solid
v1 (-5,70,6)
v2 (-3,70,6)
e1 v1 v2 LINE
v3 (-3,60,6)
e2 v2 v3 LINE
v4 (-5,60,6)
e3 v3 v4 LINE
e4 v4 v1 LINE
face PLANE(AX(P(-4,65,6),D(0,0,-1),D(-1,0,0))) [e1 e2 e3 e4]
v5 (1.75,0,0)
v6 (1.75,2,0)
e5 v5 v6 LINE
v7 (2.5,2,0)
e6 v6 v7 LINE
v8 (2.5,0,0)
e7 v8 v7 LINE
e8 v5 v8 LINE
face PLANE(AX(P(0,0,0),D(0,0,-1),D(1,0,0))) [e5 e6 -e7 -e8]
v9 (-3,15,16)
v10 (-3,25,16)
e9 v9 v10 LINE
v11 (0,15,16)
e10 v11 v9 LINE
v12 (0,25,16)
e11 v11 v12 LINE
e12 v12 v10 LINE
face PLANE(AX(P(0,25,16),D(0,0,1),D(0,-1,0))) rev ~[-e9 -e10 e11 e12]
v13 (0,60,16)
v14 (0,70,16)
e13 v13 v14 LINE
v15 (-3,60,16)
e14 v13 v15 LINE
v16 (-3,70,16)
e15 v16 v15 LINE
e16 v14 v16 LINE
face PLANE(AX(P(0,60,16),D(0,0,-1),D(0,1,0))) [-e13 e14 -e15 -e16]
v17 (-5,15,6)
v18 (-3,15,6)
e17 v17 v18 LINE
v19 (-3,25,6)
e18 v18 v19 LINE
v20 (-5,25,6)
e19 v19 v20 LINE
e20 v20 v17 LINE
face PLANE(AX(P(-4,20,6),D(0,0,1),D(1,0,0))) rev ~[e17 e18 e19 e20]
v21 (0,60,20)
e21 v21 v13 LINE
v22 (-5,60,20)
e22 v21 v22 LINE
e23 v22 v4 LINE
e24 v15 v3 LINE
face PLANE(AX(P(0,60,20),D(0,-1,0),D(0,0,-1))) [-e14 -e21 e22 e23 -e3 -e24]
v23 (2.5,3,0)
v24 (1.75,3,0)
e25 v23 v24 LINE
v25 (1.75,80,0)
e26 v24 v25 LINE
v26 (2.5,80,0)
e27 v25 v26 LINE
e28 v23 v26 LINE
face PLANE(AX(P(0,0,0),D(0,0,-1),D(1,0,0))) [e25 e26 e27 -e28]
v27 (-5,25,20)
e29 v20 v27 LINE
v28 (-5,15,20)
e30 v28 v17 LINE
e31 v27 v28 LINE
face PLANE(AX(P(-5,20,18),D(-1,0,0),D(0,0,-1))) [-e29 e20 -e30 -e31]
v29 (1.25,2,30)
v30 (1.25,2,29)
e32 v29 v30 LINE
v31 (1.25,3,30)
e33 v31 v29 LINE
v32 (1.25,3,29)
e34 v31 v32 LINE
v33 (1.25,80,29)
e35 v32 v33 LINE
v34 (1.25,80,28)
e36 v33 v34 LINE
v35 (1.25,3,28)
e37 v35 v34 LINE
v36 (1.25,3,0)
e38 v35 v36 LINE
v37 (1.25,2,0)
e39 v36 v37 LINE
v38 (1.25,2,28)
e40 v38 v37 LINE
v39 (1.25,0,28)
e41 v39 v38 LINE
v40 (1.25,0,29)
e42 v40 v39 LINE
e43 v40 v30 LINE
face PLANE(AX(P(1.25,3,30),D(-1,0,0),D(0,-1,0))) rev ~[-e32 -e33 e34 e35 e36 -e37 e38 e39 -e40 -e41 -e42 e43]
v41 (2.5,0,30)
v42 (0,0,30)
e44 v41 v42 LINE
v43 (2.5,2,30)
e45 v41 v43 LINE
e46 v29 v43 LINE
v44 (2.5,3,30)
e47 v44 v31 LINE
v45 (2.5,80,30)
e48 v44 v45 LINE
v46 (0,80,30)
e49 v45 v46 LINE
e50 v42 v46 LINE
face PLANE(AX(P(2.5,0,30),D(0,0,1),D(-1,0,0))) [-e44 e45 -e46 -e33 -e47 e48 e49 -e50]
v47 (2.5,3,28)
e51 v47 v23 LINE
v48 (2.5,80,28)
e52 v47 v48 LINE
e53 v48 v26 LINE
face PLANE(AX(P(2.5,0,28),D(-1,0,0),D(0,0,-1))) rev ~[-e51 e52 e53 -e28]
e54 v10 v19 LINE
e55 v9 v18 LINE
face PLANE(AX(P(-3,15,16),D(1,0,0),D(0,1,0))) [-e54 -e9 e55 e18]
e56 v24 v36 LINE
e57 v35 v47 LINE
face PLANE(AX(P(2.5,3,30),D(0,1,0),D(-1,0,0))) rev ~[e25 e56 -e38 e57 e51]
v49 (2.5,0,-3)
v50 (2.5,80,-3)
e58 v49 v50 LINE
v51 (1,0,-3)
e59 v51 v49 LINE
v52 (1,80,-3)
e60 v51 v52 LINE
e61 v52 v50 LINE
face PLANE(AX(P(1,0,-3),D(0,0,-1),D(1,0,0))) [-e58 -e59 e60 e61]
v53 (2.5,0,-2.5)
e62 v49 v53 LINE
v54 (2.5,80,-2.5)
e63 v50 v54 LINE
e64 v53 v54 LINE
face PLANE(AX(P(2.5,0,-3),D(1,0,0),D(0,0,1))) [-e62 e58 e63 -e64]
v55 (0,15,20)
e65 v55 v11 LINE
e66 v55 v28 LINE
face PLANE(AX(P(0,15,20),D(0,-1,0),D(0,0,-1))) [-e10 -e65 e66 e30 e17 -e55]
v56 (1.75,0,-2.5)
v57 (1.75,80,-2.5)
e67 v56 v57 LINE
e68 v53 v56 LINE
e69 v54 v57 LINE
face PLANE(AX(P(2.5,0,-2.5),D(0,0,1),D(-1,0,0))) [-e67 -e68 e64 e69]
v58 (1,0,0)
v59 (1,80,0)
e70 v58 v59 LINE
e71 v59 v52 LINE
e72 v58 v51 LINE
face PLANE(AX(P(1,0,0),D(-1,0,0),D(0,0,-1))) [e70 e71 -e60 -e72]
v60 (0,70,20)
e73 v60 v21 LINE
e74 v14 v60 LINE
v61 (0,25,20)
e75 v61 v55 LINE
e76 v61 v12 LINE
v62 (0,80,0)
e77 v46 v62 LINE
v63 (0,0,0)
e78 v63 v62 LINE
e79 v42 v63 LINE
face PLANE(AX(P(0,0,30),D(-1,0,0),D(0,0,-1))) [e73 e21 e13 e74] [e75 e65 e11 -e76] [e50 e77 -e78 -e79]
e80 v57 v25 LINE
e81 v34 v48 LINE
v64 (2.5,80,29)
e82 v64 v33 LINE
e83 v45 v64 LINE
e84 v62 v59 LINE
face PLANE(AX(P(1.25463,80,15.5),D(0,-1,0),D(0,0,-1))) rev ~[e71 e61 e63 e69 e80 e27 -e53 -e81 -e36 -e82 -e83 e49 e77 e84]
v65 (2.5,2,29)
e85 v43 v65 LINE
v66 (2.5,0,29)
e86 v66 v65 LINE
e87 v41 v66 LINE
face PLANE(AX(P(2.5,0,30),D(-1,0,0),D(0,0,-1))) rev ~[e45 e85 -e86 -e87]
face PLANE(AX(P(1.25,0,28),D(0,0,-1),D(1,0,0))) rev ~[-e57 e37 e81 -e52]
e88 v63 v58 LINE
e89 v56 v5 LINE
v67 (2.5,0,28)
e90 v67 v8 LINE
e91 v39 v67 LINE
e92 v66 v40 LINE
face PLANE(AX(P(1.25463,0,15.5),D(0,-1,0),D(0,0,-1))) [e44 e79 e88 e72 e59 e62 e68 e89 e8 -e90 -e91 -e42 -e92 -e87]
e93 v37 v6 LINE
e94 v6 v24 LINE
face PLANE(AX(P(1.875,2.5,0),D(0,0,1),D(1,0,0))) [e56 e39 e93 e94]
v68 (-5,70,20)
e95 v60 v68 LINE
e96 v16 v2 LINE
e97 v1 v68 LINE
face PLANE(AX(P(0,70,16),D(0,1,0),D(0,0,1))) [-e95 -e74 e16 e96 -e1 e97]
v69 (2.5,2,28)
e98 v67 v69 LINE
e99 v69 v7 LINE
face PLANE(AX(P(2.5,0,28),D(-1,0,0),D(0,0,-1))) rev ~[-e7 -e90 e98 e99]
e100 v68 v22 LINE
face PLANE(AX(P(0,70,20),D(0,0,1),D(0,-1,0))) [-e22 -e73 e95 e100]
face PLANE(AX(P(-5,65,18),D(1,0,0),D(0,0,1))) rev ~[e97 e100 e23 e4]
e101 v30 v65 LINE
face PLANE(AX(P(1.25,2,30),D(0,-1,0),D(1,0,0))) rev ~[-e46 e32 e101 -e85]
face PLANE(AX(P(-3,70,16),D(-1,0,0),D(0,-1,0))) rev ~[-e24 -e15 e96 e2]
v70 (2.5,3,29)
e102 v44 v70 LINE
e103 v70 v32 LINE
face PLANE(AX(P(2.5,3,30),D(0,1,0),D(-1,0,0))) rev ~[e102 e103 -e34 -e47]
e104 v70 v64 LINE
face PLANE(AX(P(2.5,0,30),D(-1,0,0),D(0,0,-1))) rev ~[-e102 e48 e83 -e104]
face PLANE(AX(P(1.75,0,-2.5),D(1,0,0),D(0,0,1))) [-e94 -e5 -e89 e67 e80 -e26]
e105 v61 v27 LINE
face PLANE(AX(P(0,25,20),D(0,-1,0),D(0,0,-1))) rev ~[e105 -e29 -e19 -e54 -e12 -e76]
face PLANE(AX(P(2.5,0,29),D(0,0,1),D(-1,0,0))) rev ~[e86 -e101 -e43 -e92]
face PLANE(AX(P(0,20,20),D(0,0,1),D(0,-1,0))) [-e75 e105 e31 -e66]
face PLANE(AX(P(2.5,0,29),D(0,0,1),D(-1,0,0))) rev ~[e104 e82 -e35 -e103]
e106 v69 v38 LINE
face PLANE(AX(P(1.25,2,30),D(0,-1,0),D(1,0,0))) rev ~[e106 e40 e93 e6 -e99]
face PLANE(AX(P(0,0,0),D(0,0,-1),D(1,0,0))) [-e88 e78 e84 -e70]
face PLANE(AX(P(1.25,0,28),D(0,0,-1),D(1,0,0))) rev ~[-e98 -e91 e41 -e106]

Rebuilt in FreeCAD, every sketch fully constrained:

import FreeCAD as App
import Part
import Sketcher
from FreeCAD import Vector
Q = App.Units.Quantity

doc = App.newDocument("Part")
body = doc.addObject("PartDesign::Body", "Body")

sketch1 = body.newObject("Sketcher::SketchObject", "Sketch")
sketch1.AttachmentSupport = (doc.getObject("XZ_Plane"), [""])
sketch1.MapMode = "FlatFace"
sketch1.addGeometry(Part.LineSegment(Vector(2.5, 30, 0), Vector(0, 30, 0)), False)
sketch1.addGeometry(Part.LineSegment(Vector(0, 30, 0), Vector(0, 0, 0)), False)
sketch1.addGeometry(Part.LineSegment(Vector(0, 0, 0), Vector(2.5, 0, 0)), False)
sketch1.addGeometry(Part.LineSegment(Vector(2.5, 0, 0), Vector(2.5, 28, 0)), False)
sketch1.addGeometry(Part.LineSegment(Vector(2.5, 28, 0), Vector(1.2, 28, 0)), False)
sketch1.addGeometry(Part.LineSegment(Vector(1.2, 28, 0), Vector(1.2, 29, 0)), False)
sketch1.addGeometry(Part.LineSegment(Vector(1.2, 29, 0), Vector(2.5, 29, 0)), False)
sketch1.addGeometry(Part.LineSegment(Vector(2.5, 29, 0), Vector(2.5, 30, 0)), False)
sketch1.addConstraint(Sketcher.Constraint("Coincident", 0, 2, 1, 1))
sketch1.addConstraint(Sketcher.Constraint("Coincident", 1, 2, 2, 1))
sketch1.addConstraint(Sketcher.Constraint("Coincident", 2, 2, 3, 1))
sketch1.addConstraint(Sketcher.Constraint("Coincident", 3, 2, 4, 1))
sketch1.addConstraint(Sketcher.Constraint("Coincident", 4, 2, 5, 1))
sketch1.addConstraint(Sketcher.Constraint("Coincident", 5, 2, 6, 1))
sketch1.addConstraint(Sketcher.Constraint("Coincident", 6, 2, 7, 1))
sketch1.addConstraint(Sketcher.Constraint("Coincident", 7, 2, 0, 1))
sketch1.addConstraint(Sketcher.Constraint("Horizontal", 0))
sketch1.addConstraint(Sketcher.Constraint("Vertical", 1))
sketch1.addConstraint(Sketcher.Constraint("Horizontal", 2))
sketch1.addConstraint(Sketcher.Constraint("Vertical", 3))
sketch1.addConstraint(Sketcher.Constraint("Horizontal", 4))
sketch1.addConstraint(Sketcher.Constraint("Vertical", 5))
sketch1.addConstraint(Sketcher.Constraint("Horizontal", 6))
sketch1.addConstraint(Sketcher.Constraint("Vertical", 7))
sketch1.addConstraint(Sketcher.Constraint("Coincident", 1, 2, -1, 1))
sketch1.addConstraint(Sketcher.Constraint("Vertical", 3, 2, 6, 2))
sketch1.addConstraint(Sketcher.Constraint("Equal", 5, 7))
sketch1.addConstraint(Sketcher.Constraint("DistanceY", 1, 2, 1, 1, Q("30 mm")))
sketch1.addConstraint(Sketcher.Constraint("DistanceY", 3, 1, 3, 2, Q("28 mm")))
sketch1.addConstraint(Sketcher.Constraint("DistanceX", 0, 2, 0, 1, Q("2.5 mm")))
sketch1.addConstraint(Sketcher.Constraint("DistanceX", 4, 2, 4, 1, Q("1.25 mm")))
pad1 = body.newObject("PartDesign::Pad", "Pad")
pad1.Profile = sketch1
pad1.Length = 80
pad1.Reversed = True

sketch2 = body.newObject("Sketcher::SketchObject", "Sketch001")
sketch2.AttachmentSupport = (doc.getObject("XZ_Plane"), [""])
sketch2.MapMode = "FlatFace"
sketch2.addGeometry(Part.LineSegment(Vector(2.5, -2.5, 0), Vector(1.8, -2.5, 0)), False)
sketch2.addGeometry(Part.LineSegment(Vector(1.8, -2.5, 0), Vector(1.8, 0, 0)), False)
sketch2.addGeometry(Part.LineSegment(Vector(1.8, 0, 0), Vector(1, 0, 0)), False)
sketch2.addGeometry(Part.LineSegment(Vector(1, 0, 0), Vector(1, -3, 0)), False)
sketch2.addGeometry(Part.LineSegment(Vector(1, -3, 0), Vector(2.5, -3, 0)), False)
sketch2.addGeometry(Part.LineSegment(Vector(2.5, -3, 0), Vector(2.5, -2.5, 0)), False)
sketch2.addConstraint(Sketcher.Constraint("Coincident", 0, 2, 1, 1))
sketch2.addConstraint(Sketcher.Constraint("Coincident", 1, 2, 2, 1))
sketch2.addConstraint(Sketcher.Constraint("Coincident", 2, 2, 3, 1))
sketch2.addConstraint(Sketcher.Constraint("Coincident", 3, 2, 4, 1))
sketch2.addConstraint(Sketcher.Constraint("Coincident", 4, 2, 5, 1))
sketch2.addConstraint(Sketcher.Constraint("Coincident", 5, 2, 0, 1))
sketch2.addConstraint(Sketcher.Constraint("Horizontal", 0))
sketch2.addConstraint(Sketcher.Constraint("Vertical", 1))
sketch2.addConstraint(Sketcher.Constraint("Horizontal", 2))
sketch2.addConstraint(Sketcher.Constraint("Vertical", 3))
sketch2.addConstraint(Sketcher.Constraint("Horizontal", 4))
sketch2.addConstraint(Sketcher.Constraint("Vertical", 5))
sketch2.addConstraint(Sketcher.Constraint("PointOnObject", 1, 2, -1))
sketch2.addConstraint(Sketcher.Constraint("Equal", 0, 2))
sketch2.addConstraint(Sketcher.Constraint("DistanceY", 3, 2, 3, 1, Q("3 mm")))
sketch2.addConstraint(Sketcher.Constraint("DistanceX", 4, 1, 4, 2, Q("1.5 mm")))
sketch2.addConstraint(Sketcher.Constraint("DistanceY", 1, 1, 1, 2, Q("2.5 mm")))
sketch2.addConstraint(Sketcher.Constraint("DistanceX", -1, 1, 2, 2, Q("1 mm")))
pad2 = body.newObject("PartDesign::Pad", "Pad001")
pad2.Profile = sketch2
pad2.Length = 80
pad2.Reversed = True

sketch3 = body.newObject("Sketcher::SketchObject", "Sketch002")
sketch3.AttachmentSupport = (doc.getObject("XY_Plane"), [""])
sketch3.MapMode = "FlatFace"
sketch3.AttachmentOffset = App.Placement(Vector(0, 0, 30), App.Rotation())
sketch3.addGeometry(Part.LineSegment(Vector(2.5, 3, 0), Vector(1.2, 3, 0)), False)
sketch3.addGeometry(Part.LineSegment(Vector(1.2, 3, 0), Vector(1.2, 2, 0)), False)
sketch3.addGeometry(Part.LineSegment(Vector(1.2, 2, 0), Vector(2.5, 2, 0)), False)
sketch3.addGeometry(Part.LineSegment(Vector(2.5, 2, 0), Vector(2.5, 3, 0)), False)
sketch3.addConstraint(Sketcher.Constraint("Coincident", 0, 2, 1, 1))
sketch3.addConstraint(Sketcher.Constraint("Coincident", 1, 2, 2, 1))
sketch3.addConstraint(Sketcher.Constraint("Coincident", 2, 2, 3, 1))
sketch3.addConstraint(Sketcher.Constraint("Coincident", 3, 2, 0, 1))
sketch3.addConstraint(Sketcher.Constraint("Horizontal", 0))
sketch3.addConstraint(Sketcher.Constraint("Vertical", 1))
sketch3.addConstraint(Sketcher.Constraint("Horizontal", 2))
sketch3.addConstraint(Sketcher.Constraint("Vertical", 3))
sketch3.addConstraint(Sketcher.Constraint("DistanceY", 1, 2, 1, 1, Q("1 mm")))
sketch3.addConstraint(Sketcher.Constraint("DistanceY", -1, 1, 0, 2, Q("3 mm")))
sketch3.addConstraint(Sketcher.Constraint("DistanceX", 0, 2, 0, 1, Q("1.25 mm")))
sketch3.addConstraint(Sketcher.Constraint("DistanceX", -1, 1, 2, 2, Q("2.5 mm")))
pocket1 = body.newObject("PartDesign::Pocket", "Pocket")
pocket1.Profile = sketch3
pocket1.Length = 30

sketch4 = body.newObject("Sketcher::SketchObject", "Sketch003")
sketch4.AttachmentSupport = (doc.getObject("YZ_Plane"), [""])
sketch4.MapMode = "FlatFace"
sketch4.addGeometry(Part.LineSegment(Vector(60, 16, 0), Vector(60, 20, 0)), False)
sketch4.addGeometry(Part.LineSegment(Vector(60, 20, 0), Vector(70, 20, 0)), False)
sketch4.addGeometry(Part.LineSegment(Vector(70, 20, 0), Vector(70, 16, 0)), False)
sketch4.addGeometry(Part.LineSegment(Vector(70, 16, 0), Vector(60, 16, 0)), False)
sketch4.addGeometry(Part.LineSegment(Vector(15, 20, 0), Vector(25, 20, 0)), False)
sketch4.addGeometry(Part.LineSegment(Vector(25, 20, 0), Vector(25, 16, 0)), False)
sketch4.addGeometry(Part.LineSegment(Vector(25, 16, 0), Vector(15, 16, 0)), False)
sketch4.addGeometry(Part.LineSegment(Vector(15, 16, 0), Vector(15, 20, 0)), False)
sketch4.addConstraint(Sketcher.Constraint("Coincident", 0, 2, 1, 1))
sketch4.addConstraint(Sketcher.Constraint("Coincident", 1, 2, 2, 1))
sketch4.addConstraint(Sketcher.Constraint("Coincident", 2, 2, 3, 1))
sketch4.addConstraint(Sketcher.Constraint("Coincident", 3, 2, 0, 1))
sketch4.addConstraint(Sketcher.Constraint("Coincident", 4, 2, 5, 1))
sketch4.addConstraint(Sketcher.Constraint("Coincident", 5, 2, 6, 1))
sketch4.addConstraint(Sketcher.Constraint("Coincident", 6, 2, 7, 1))
sketch4.addConstraint(Sketcher.Constraint("Coincident", 7, 2, 4, 1))
sketch4.addConstraint(Sketcher.Constraint("Vertical", 0))
sketch4.addConstraint(Sketcher.Constraint("Horizontal", 1))
sketch4.addConstraint(Sketcher.Constraint("Vertical", 2))
sketch4.addConstraint(Sketcher.Constraint("Horizontal", 3))
sketch4.addConstraint(Sketcher.Constraint("Horizontal", 4))
sketch4.addConstraint(Sketcher.Constraint("Vertical", 5))
sketch4.addConstraint(Sketcher.Constraint("Horizontal", 6))
sketch4.addConstraint(Sketcher.Constraint("Vertical", 7))
sketch4.addConstraint(Sketcher.Constraint("Horizontal", 1, 2, 4, 2))
sketch4.addConstraint(Sketcher.Constraint("Horizontal", 3, 2, 5, 2))
sketch4.addConstraint(Sketcher.Constraint("Equal", 3, 4))
sketch4.addConstraint(Sketcher.Constraint("DistanceX", 1, 1, 1, 2, Q("10 mm")))
sketch4.addConstraint(Sketcher.Constraint("DistanceY", 0, 1, 0, 2, Q("4 mm")))
sketch4.addConstraint(Sketcher.Constraint("DistanceX", -1, 1, 0, 2, Q("60 mm")))
sketch4.addConstraint(Sketcher.Constraint("DistanceY", -1, 1, 0, 2, Q("20 mm")))
sketch4.addConstraint(Sketcher.Constraint("DistanceX", -1, 1, 4, 2, Q("25 mm")))
pad3 = body.newObject("PartDesign::Pad", "Pad002")
pad3.Profile = sketch4
pad3.Length = 5
pad3.Reversed = True

sketch5 = body.newObject("Sketcher::SketchObject", "Sketch004")
sketch5.AttachmentSupport = (doc.getObject("XY_Plane"), [""])
sketch5.MapMode = "FlatFace"
sketch5.AttachmentOffset = App.Placement(Vector(0, 0, 16), App.Rotation())
sketch5.addGeometry(Part.LineSegment(Vector(-5, 15, 0), Vector(-5, 25, 0)), False)
sketch5.addGeometry(Part.LineSegment(Vector(-5, 25, 0), Vector(-3, 25, 0)), False)
sketch5.addGeometry(Part.LineSegment(Vector(-3, 25, 0), Vector(-3, 15, 0)), False)
sketch5.addGeometry(Part.LineSegment(Vector(-3, 15, 0), Vector(-5, 15, 0)), False)
sketch5.addGeometry(Part.LineSegment(Vector(-5, 70, 0), Vector(-3, 70, 0)), False)
sketch5.addGeometry(Part.LineSegment(Vector(-3, 70, 0), Vector(-3, 60, 0)), False)
sketch5.addGeometry(Part.LineSegment(Vector(-3, 60, 0), Vector(-5, 60, 0)), False)
sketch5.addGeometry(Part.LineSegment(Vector(-5, 60, 0), Vector(-5, 70, 0)), False)
sketch5.addConstraint(Sketcher.Constraint("Coincident", 0, 2, 1, 1))
sketch5.addConstraint(Sketcher.Constraint("Coincident", 1, 2, 2, 1))
sketch5.addConstraint(Sketcher.Constraint("Coincident", 2, 2, 3, 1))
sketch5.addConstraint(Sketcher.Constraint("Coincident", 3, 2, 0, 1))
sketch5.addConstraint(Sketcher.Constraint("Coincident", 4, 2, 5, 1))
sketch5.addConstraint(Sketcher.Constraint("Coincident", 5, 2, 6, 1))
sketch5.addConstraint(Sketcher.Constraint("Coincident", 6, 2, 7, 1))
sketch5.addConstraint(Sketcher.Constraint("Coincident", 7, 2, 4, 1))
sketch5.addConstraint(Sketcher.Constraint("Vertical", 0))
sketch5.addConstraint(Sketcher.Constraint("Horizontal", 1))
sketch5.addConstraint(Sketcher.Constraint("Vertical", 2))
sketch5.addConstraint(Sketcher.Constraint("Horizontal", 3))
sketch5.addConstraint(Sketcher.Constraint("Horizontal", 4))
sketch5.addConstraint(Sketcher.Constraint("Vertical", 5))
sketch5.addConstraint(Sketcher.Constraint("Horizontal", 6))
sketch5.addConstraint(Sketcher.Constraint("Vertical", 7))
sketch5.addConstraint(Sketcher.Constraint("Vertical", 2, 2, 4, 2))
sketch5.addConstraint(Sketcher.Constraint("Vertical", 3, 2, 6, 2))
sketch5.addConstraint(Sketcher.Constraint("Equal", 2, 5))
sketch5.addConstraint(Sketcher.Constraint("DistanceX", 1, 1, 1, 2, Q("2 mm")))
sketch5.addConstraint(Sketcher.Constraint("DistanceY", 0, 1, 0, 2, Q("10 mm")))
sketch5.addConstraint(Sketcher.Constraint("DistanceX", 0, 2, -1, 1, Q("5 mm")))
sketch5.addConstraint(Sketcher.Constraint("DistanceY", -1, 1, 0, 2, Q("25 mm")))
sketch5.addConstraint(Sketcher.Constraint("DistanceY", -1, 1, 4, 2, Q("70 mm")))
pad4 = body.newObject("PartDesign::Pad", "Pad003")
pad4.Profile = sketch5
pad4.Length = 10
pad4.Reversed = True

doc.recompute()
